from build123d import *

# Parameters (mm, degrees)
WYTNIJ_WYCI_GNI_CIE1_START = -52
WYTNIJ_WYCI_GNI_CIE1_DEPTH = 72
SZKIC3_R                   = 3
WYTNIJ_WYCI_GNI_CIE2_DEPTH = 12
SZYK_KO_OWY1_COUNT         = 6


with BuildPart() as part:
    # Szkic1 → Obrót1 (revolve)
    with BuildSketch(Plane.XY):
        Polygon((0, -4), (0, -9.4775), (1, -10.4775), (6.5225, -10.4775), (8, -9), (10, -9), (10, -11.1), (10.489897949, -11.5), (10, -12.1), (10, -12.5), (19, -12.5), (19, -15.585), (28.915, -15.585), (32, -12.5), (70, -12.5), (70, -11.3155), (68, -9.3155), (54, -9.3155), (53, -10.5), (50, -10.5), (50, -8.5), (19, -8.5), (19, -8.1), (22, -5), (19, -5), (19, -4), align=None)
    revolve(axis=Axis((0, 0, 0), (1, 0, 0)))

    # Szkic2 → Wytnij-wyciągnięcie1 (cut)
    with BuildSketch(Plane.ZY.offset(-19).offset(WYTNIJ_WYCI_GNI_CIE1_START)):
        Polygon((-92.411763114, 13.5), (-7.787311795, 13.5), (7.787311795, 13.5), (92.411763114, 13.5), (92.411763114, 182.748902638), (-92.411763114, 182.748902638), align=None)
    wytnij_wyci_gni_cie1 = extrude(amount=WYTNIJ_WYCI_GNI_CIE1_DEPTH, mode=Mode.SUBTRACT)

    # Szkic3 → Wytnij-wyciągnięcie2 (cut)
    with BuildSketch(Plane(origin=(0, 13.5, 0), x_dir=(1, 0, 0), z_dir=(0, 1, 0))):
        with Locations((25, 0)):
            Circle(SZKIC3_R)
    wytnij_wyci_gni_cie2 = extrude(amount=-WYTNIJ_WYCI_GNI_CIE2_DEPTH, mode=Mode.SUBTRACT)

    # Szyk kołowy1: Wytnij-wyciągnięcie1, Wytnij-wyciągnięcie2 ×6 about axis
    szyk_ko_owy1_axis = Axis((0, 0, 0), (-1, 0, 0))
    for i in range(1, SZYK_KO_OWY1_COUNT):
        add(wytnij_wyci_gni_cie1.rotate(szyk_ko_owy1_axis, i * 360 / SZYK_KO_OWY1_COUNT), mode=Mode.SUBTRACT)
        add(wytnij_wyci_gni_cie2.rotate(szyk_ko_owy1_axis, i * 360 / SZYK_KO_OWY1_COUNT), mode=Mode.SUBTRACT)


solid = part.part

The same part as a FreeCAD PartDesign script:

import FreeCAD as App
import Part
import Sketcher

V = App.Vector
Q = App.Units.Quantity


def add_polygon(sketch, points):
    """Adds a closed chain of lines whose ends are joined by coincident constraints."""
    first, n = sketch.GeometryCount, len(points)
    for a, b in zip(points, points[1:] + points[:1]):
        sketch.addGeometry(Part.LineSegment(App.Vector(*a, 0), App.Vector(*b, 0)), False)
    for i in range(n):
        sketch.addConstraint(Sketcher.Constraint("Coincident", first + i, 2, first + (i + 1) % n, 1))

doc = App.newDocument("Part")
params = doc.addObject("Spreadsheet::Sheet", "Params")
for row, (alias, value) in enumerate([
    ("sketch1_width", "2 mm"),
    ("sketch1_width2", "9 mm"),
    ("sketch1_width3", "38 mm"),
    ("sketch1_width4", "14 mm"),
    ("sketch1_width5", "3 mm"),
    ("revolution_angle", "360 deg"),
    ("pocket1_length", "72 mm"),
    ("sketch3_diameter", "6 mm"),
    ("pocket2_length", "12 mm"),
], start=1):
    params.set(f"A{row}", alias)
    params.set(f"B{row}", "=" + value)
    params.setAlias(f"B{row}", alias)

body = doc.addObject("PartDesign::Body", "Body")

# Sketch on XY plane
sketch1 = body.newObject("Sketcher::SketchObject", "Sketch")
sketch1.AttachmentSupport = (doc.getObject("XY_Plane"), [""])
sketch1.MapMode = "FlatFace"
add_polygon(sketch1, [(0, -4), (0, -9.48), (1, -10.48), (6.52, -10.48), (8, -9), (10, -9), (10, -11.1), (10.49, -11.5), (10, -12.1), (10, -12.5), (19, -12.5), (19, -15.59), (28.91, -15.59), (32, -12.5), (70, -12.5), (70, -11.32), (68, -9.32), (54, -9.32), (53, -10.5), (50, -10.5), (50, -8.5), (19, -8.5), (19, -8.1), (22, -5), (19, -5), (19, -4)])  # lines 0-25
sketch1.addConstraint([
    Sketcher.Constraint("Vertical", 0),
    Sketcher.Constraint("Horizontal", 2),
    Sketcher.Constraint("Horizontal", 4),
    Sketcher.Constraint("Vertical", 5),
    Sketcher.Constraint("Vertical", 8),
    Sketcher.Constraint("Horizontal", 9),
    Sketcher.Constraint("Vertical", 10),
    Sketcher.Constraint("Horizontal", 11),
    Sketcher.Constraint("Horizontal", 13),
    Sketcher.Constraint("Vertical", 14),
    Sketcher.Constraint("Horizontal", 16),
    Sketcher.Constraint("Horizontal", 18),
    Sketcher.Constraint("Vertical", 19),
    Sketcher.Constraint("Horizontal", 20),
    Sketcher.Constraint("Vertical", 21),
    Sketcher.Constraint("Horizontal", 23),
    Sketcher.Constraint("Vertical", 24),
    Sketcher.Constraint("Horizontal", 25),
    Sketcher.Constraint("PointOnObject", 0, 2, -2),
    Sketcher.Constraint("Perpendicular", 1, 3),
    Sketcher.Constraint("Perpendicular", 6, 7),
    Sketcher.Constraint("Parallel", 3, 12),
    Sketcher.Constraint("Perpendicular", 12, 15),
    Sketcher.Constraint("Horizontal", 9, 2, 12, 2),
    Sketcher.Constraint("Vertical", 5, 2, 7, 2),
    Sketcher.Constraint("Vertical", 10, 2, 20, 2),
    Sketcher.Constraint("Vertical", 21, 2, 23, 2),
    Sketcher.Constraint("Equal", 18, 23),
    Sketcher.Constraint("Equal", 4, 19),
    Sketcher.Constraint("Equal", 8, 21),
    Sketcher.Constraint("DistanceX", 4, 1, 4, 2, Q("2 mm")),
    Sketcher.Constraint("DistanceX", 9, 1, 9, 2, Q("9 mm")),
    Sketcher.Constraint("DistanceX", 13, 1, 13, 2, Q("38 mm")),
    Sketcher.Constraint("DistanceX", 16, 2, 16, 1, Q("14 mm")),
    Sketcher.Constraint("DistanceX", 18, 2, 18, 1, Q("3 mm")),
    Sketcher.Constraint("DistanceX", 20, 2, 20, 1, Q("31 mm")),
    Sketcher.Constraint("DistanceX", 25, 2, 25, 1, Q("19 mm")),
    Sketcher.Constraint("DistanceY", 24, 1, 24, 2, Q("1 mm")),
    Sketcher.Constraint("Angle", 1, Q("-45 deg")),
    Sketcher.Constraint("DistanceY", 5, 2, 5, 1, Q("2.1 mm")),
    Sketcher.Constraint("DistanceY", 8, 2, 8, 1, Q("0.4 mm")),
    Sketcher.Constraint("DistanceX", -1, 1, 1, 2, Q("1 mm")),
    Sketcher.Constraint("DistanceY", 3, 2, -1, 1, Q("9 mm")),
    Sketcher.Constraint("DistanceX", -1, 1, 12, 2, Q("32 mm")),
    Sketcher.Constraint("DistanceX", -1, 1, 15, 2, Q("68 mm")),
    Sketcher.Constraint("DistanceY", 22, 2, -1, 1, Q("5 mm")),
    Sketcher.Constraint("DistanceY", 7, 2, 5, 2, Q("1 mm")),
    Sketcher.Constraint("DistanceY", 8, 2, 6, 2, Q("1 mm")),
    Sketcher.Constraint("DistanceY", 13, 2, 17, 2, Q("2 mm")),
    Sketcher.Constraint("DistanceX", 11, 1, 11, 2, Q("9.915 mm")),
    Sketcher.Constraint("DistanceX", 2, 1, 2, 2, Q("5.5225 mm")),
    Sketcher.Constraint("DistanceY", 14, 1, 14, 2, Q("1.1845 mm")),
])
sketch1.setExpression("Constraints[56]", "Params.sketch1_width")
sketch1.setExpression("Constraints[57]", "Params.sketch1_width2")
sketch1.setExpression("Constraints[58]", "Params.sketch1_width3")
sketch1.setExpression("Constraints[59]", "Params.sketch1_width4")
sketch1.setExpression("Constraints[60]", "Params.sketch1_width5")
revolution = body.newObject("PartDesign::Revolution", "Revolution")
revolution.Profile = sketch1
revolution.ReferenceAxis = (sketch1, ["H_Axis"])
revolution.setExpression("Angle", "Params.revolution_angle")

# Sketch on YZ plane
sketch2 = body.newObject("Sketcher::SketchObject", "Sketch001")
sketch2.AttachmentSupport = (doc.getObject("YZ_Plane"), [""])
sketch2.MapMode = "FlatFace"
sketch2.AttachmentOffset = App.Placement(V(0, 0, 71), App.Rotation())
add_polygon(sketch2, [(14, -92), (14, 92), (183, 92), (183, -92)])  # lines 0-3
sketch2.addConstraint([
    Sketcher.Constraint("Vertical", 0),
    Sketcher.Constraint("Horizontal", 1),
    Sketcher.Constraint("Vertical", 2),
    Sketcher.Constraint("Horizontal", 3),
    Sketcher.Constraint("DistanceX", -1, 1, 0, 2, Q("13.5 mm")),
    Sketcher.Constraint("DistanceX", 1, 1, 1, 2, Q("169.248903 mm")),
    Sketcher.Constraint("DistanceY", 0, 1, 0, 2, Q("184.823526 mm")),
    Sketcher.Constraint("DistanceY", -1, 1, 0, 2, Q("92.411763 mm")),
])
pocket1 = body.newObject("PartDesign::Pocket", "Pocket")
pocket1.Profile = sketch2
pocket1.setExpression("Length", "Params.pocket1_length")

# Sketch on XZ plane
sketch3 = body.newObject("Sketcher::SketchObject", "Sketch002")
sketch3.AttachmentSupport = (doc.getObject("XZ_Plane"), [""])
sketch3.MapMode = "FlatFace"
sketch3.AttachmentOffset = App.Placement(V(0, 0, -13.5), App.Rotation())
sketch3.addGeometry(Part.Circle(V(25, 0, 0), V(0, 0, 1), 3), False)
sketch3.addConstraint([
    Sketcher.Constraint("PointOnObject", 0, 3, -1),
    Sketcher.Constraint("Diameter", 0, Q("6 mm")),
    Sketcher.Constraint("DistanceX", -1, 1, 0, 3, Q("25 mm")),
])
sketch3.setExpression("Constraints[1]", "Params.sketch3_diameter")
pocket2 = body.newObject("PartDesign::Pocket", "Pocket001")
pocket2.Profile = sketch3
pocket2.setExpression("Length", "Params.pocket2_length")
pocket2.Reversed = True
doc.recompute()

polarpattern = body.newObject("PartDesign::PolarPattern", "PolarPattern")
polarpattern.Originals = [pocket1, pocket2]
polarpattern.Axis = (doc.getObject("X_Axis"), [""])
polarpattern.Angle = 360
polarpattern.Occurrences = 6
body.Tip = polarpattern

doc.recompute()
